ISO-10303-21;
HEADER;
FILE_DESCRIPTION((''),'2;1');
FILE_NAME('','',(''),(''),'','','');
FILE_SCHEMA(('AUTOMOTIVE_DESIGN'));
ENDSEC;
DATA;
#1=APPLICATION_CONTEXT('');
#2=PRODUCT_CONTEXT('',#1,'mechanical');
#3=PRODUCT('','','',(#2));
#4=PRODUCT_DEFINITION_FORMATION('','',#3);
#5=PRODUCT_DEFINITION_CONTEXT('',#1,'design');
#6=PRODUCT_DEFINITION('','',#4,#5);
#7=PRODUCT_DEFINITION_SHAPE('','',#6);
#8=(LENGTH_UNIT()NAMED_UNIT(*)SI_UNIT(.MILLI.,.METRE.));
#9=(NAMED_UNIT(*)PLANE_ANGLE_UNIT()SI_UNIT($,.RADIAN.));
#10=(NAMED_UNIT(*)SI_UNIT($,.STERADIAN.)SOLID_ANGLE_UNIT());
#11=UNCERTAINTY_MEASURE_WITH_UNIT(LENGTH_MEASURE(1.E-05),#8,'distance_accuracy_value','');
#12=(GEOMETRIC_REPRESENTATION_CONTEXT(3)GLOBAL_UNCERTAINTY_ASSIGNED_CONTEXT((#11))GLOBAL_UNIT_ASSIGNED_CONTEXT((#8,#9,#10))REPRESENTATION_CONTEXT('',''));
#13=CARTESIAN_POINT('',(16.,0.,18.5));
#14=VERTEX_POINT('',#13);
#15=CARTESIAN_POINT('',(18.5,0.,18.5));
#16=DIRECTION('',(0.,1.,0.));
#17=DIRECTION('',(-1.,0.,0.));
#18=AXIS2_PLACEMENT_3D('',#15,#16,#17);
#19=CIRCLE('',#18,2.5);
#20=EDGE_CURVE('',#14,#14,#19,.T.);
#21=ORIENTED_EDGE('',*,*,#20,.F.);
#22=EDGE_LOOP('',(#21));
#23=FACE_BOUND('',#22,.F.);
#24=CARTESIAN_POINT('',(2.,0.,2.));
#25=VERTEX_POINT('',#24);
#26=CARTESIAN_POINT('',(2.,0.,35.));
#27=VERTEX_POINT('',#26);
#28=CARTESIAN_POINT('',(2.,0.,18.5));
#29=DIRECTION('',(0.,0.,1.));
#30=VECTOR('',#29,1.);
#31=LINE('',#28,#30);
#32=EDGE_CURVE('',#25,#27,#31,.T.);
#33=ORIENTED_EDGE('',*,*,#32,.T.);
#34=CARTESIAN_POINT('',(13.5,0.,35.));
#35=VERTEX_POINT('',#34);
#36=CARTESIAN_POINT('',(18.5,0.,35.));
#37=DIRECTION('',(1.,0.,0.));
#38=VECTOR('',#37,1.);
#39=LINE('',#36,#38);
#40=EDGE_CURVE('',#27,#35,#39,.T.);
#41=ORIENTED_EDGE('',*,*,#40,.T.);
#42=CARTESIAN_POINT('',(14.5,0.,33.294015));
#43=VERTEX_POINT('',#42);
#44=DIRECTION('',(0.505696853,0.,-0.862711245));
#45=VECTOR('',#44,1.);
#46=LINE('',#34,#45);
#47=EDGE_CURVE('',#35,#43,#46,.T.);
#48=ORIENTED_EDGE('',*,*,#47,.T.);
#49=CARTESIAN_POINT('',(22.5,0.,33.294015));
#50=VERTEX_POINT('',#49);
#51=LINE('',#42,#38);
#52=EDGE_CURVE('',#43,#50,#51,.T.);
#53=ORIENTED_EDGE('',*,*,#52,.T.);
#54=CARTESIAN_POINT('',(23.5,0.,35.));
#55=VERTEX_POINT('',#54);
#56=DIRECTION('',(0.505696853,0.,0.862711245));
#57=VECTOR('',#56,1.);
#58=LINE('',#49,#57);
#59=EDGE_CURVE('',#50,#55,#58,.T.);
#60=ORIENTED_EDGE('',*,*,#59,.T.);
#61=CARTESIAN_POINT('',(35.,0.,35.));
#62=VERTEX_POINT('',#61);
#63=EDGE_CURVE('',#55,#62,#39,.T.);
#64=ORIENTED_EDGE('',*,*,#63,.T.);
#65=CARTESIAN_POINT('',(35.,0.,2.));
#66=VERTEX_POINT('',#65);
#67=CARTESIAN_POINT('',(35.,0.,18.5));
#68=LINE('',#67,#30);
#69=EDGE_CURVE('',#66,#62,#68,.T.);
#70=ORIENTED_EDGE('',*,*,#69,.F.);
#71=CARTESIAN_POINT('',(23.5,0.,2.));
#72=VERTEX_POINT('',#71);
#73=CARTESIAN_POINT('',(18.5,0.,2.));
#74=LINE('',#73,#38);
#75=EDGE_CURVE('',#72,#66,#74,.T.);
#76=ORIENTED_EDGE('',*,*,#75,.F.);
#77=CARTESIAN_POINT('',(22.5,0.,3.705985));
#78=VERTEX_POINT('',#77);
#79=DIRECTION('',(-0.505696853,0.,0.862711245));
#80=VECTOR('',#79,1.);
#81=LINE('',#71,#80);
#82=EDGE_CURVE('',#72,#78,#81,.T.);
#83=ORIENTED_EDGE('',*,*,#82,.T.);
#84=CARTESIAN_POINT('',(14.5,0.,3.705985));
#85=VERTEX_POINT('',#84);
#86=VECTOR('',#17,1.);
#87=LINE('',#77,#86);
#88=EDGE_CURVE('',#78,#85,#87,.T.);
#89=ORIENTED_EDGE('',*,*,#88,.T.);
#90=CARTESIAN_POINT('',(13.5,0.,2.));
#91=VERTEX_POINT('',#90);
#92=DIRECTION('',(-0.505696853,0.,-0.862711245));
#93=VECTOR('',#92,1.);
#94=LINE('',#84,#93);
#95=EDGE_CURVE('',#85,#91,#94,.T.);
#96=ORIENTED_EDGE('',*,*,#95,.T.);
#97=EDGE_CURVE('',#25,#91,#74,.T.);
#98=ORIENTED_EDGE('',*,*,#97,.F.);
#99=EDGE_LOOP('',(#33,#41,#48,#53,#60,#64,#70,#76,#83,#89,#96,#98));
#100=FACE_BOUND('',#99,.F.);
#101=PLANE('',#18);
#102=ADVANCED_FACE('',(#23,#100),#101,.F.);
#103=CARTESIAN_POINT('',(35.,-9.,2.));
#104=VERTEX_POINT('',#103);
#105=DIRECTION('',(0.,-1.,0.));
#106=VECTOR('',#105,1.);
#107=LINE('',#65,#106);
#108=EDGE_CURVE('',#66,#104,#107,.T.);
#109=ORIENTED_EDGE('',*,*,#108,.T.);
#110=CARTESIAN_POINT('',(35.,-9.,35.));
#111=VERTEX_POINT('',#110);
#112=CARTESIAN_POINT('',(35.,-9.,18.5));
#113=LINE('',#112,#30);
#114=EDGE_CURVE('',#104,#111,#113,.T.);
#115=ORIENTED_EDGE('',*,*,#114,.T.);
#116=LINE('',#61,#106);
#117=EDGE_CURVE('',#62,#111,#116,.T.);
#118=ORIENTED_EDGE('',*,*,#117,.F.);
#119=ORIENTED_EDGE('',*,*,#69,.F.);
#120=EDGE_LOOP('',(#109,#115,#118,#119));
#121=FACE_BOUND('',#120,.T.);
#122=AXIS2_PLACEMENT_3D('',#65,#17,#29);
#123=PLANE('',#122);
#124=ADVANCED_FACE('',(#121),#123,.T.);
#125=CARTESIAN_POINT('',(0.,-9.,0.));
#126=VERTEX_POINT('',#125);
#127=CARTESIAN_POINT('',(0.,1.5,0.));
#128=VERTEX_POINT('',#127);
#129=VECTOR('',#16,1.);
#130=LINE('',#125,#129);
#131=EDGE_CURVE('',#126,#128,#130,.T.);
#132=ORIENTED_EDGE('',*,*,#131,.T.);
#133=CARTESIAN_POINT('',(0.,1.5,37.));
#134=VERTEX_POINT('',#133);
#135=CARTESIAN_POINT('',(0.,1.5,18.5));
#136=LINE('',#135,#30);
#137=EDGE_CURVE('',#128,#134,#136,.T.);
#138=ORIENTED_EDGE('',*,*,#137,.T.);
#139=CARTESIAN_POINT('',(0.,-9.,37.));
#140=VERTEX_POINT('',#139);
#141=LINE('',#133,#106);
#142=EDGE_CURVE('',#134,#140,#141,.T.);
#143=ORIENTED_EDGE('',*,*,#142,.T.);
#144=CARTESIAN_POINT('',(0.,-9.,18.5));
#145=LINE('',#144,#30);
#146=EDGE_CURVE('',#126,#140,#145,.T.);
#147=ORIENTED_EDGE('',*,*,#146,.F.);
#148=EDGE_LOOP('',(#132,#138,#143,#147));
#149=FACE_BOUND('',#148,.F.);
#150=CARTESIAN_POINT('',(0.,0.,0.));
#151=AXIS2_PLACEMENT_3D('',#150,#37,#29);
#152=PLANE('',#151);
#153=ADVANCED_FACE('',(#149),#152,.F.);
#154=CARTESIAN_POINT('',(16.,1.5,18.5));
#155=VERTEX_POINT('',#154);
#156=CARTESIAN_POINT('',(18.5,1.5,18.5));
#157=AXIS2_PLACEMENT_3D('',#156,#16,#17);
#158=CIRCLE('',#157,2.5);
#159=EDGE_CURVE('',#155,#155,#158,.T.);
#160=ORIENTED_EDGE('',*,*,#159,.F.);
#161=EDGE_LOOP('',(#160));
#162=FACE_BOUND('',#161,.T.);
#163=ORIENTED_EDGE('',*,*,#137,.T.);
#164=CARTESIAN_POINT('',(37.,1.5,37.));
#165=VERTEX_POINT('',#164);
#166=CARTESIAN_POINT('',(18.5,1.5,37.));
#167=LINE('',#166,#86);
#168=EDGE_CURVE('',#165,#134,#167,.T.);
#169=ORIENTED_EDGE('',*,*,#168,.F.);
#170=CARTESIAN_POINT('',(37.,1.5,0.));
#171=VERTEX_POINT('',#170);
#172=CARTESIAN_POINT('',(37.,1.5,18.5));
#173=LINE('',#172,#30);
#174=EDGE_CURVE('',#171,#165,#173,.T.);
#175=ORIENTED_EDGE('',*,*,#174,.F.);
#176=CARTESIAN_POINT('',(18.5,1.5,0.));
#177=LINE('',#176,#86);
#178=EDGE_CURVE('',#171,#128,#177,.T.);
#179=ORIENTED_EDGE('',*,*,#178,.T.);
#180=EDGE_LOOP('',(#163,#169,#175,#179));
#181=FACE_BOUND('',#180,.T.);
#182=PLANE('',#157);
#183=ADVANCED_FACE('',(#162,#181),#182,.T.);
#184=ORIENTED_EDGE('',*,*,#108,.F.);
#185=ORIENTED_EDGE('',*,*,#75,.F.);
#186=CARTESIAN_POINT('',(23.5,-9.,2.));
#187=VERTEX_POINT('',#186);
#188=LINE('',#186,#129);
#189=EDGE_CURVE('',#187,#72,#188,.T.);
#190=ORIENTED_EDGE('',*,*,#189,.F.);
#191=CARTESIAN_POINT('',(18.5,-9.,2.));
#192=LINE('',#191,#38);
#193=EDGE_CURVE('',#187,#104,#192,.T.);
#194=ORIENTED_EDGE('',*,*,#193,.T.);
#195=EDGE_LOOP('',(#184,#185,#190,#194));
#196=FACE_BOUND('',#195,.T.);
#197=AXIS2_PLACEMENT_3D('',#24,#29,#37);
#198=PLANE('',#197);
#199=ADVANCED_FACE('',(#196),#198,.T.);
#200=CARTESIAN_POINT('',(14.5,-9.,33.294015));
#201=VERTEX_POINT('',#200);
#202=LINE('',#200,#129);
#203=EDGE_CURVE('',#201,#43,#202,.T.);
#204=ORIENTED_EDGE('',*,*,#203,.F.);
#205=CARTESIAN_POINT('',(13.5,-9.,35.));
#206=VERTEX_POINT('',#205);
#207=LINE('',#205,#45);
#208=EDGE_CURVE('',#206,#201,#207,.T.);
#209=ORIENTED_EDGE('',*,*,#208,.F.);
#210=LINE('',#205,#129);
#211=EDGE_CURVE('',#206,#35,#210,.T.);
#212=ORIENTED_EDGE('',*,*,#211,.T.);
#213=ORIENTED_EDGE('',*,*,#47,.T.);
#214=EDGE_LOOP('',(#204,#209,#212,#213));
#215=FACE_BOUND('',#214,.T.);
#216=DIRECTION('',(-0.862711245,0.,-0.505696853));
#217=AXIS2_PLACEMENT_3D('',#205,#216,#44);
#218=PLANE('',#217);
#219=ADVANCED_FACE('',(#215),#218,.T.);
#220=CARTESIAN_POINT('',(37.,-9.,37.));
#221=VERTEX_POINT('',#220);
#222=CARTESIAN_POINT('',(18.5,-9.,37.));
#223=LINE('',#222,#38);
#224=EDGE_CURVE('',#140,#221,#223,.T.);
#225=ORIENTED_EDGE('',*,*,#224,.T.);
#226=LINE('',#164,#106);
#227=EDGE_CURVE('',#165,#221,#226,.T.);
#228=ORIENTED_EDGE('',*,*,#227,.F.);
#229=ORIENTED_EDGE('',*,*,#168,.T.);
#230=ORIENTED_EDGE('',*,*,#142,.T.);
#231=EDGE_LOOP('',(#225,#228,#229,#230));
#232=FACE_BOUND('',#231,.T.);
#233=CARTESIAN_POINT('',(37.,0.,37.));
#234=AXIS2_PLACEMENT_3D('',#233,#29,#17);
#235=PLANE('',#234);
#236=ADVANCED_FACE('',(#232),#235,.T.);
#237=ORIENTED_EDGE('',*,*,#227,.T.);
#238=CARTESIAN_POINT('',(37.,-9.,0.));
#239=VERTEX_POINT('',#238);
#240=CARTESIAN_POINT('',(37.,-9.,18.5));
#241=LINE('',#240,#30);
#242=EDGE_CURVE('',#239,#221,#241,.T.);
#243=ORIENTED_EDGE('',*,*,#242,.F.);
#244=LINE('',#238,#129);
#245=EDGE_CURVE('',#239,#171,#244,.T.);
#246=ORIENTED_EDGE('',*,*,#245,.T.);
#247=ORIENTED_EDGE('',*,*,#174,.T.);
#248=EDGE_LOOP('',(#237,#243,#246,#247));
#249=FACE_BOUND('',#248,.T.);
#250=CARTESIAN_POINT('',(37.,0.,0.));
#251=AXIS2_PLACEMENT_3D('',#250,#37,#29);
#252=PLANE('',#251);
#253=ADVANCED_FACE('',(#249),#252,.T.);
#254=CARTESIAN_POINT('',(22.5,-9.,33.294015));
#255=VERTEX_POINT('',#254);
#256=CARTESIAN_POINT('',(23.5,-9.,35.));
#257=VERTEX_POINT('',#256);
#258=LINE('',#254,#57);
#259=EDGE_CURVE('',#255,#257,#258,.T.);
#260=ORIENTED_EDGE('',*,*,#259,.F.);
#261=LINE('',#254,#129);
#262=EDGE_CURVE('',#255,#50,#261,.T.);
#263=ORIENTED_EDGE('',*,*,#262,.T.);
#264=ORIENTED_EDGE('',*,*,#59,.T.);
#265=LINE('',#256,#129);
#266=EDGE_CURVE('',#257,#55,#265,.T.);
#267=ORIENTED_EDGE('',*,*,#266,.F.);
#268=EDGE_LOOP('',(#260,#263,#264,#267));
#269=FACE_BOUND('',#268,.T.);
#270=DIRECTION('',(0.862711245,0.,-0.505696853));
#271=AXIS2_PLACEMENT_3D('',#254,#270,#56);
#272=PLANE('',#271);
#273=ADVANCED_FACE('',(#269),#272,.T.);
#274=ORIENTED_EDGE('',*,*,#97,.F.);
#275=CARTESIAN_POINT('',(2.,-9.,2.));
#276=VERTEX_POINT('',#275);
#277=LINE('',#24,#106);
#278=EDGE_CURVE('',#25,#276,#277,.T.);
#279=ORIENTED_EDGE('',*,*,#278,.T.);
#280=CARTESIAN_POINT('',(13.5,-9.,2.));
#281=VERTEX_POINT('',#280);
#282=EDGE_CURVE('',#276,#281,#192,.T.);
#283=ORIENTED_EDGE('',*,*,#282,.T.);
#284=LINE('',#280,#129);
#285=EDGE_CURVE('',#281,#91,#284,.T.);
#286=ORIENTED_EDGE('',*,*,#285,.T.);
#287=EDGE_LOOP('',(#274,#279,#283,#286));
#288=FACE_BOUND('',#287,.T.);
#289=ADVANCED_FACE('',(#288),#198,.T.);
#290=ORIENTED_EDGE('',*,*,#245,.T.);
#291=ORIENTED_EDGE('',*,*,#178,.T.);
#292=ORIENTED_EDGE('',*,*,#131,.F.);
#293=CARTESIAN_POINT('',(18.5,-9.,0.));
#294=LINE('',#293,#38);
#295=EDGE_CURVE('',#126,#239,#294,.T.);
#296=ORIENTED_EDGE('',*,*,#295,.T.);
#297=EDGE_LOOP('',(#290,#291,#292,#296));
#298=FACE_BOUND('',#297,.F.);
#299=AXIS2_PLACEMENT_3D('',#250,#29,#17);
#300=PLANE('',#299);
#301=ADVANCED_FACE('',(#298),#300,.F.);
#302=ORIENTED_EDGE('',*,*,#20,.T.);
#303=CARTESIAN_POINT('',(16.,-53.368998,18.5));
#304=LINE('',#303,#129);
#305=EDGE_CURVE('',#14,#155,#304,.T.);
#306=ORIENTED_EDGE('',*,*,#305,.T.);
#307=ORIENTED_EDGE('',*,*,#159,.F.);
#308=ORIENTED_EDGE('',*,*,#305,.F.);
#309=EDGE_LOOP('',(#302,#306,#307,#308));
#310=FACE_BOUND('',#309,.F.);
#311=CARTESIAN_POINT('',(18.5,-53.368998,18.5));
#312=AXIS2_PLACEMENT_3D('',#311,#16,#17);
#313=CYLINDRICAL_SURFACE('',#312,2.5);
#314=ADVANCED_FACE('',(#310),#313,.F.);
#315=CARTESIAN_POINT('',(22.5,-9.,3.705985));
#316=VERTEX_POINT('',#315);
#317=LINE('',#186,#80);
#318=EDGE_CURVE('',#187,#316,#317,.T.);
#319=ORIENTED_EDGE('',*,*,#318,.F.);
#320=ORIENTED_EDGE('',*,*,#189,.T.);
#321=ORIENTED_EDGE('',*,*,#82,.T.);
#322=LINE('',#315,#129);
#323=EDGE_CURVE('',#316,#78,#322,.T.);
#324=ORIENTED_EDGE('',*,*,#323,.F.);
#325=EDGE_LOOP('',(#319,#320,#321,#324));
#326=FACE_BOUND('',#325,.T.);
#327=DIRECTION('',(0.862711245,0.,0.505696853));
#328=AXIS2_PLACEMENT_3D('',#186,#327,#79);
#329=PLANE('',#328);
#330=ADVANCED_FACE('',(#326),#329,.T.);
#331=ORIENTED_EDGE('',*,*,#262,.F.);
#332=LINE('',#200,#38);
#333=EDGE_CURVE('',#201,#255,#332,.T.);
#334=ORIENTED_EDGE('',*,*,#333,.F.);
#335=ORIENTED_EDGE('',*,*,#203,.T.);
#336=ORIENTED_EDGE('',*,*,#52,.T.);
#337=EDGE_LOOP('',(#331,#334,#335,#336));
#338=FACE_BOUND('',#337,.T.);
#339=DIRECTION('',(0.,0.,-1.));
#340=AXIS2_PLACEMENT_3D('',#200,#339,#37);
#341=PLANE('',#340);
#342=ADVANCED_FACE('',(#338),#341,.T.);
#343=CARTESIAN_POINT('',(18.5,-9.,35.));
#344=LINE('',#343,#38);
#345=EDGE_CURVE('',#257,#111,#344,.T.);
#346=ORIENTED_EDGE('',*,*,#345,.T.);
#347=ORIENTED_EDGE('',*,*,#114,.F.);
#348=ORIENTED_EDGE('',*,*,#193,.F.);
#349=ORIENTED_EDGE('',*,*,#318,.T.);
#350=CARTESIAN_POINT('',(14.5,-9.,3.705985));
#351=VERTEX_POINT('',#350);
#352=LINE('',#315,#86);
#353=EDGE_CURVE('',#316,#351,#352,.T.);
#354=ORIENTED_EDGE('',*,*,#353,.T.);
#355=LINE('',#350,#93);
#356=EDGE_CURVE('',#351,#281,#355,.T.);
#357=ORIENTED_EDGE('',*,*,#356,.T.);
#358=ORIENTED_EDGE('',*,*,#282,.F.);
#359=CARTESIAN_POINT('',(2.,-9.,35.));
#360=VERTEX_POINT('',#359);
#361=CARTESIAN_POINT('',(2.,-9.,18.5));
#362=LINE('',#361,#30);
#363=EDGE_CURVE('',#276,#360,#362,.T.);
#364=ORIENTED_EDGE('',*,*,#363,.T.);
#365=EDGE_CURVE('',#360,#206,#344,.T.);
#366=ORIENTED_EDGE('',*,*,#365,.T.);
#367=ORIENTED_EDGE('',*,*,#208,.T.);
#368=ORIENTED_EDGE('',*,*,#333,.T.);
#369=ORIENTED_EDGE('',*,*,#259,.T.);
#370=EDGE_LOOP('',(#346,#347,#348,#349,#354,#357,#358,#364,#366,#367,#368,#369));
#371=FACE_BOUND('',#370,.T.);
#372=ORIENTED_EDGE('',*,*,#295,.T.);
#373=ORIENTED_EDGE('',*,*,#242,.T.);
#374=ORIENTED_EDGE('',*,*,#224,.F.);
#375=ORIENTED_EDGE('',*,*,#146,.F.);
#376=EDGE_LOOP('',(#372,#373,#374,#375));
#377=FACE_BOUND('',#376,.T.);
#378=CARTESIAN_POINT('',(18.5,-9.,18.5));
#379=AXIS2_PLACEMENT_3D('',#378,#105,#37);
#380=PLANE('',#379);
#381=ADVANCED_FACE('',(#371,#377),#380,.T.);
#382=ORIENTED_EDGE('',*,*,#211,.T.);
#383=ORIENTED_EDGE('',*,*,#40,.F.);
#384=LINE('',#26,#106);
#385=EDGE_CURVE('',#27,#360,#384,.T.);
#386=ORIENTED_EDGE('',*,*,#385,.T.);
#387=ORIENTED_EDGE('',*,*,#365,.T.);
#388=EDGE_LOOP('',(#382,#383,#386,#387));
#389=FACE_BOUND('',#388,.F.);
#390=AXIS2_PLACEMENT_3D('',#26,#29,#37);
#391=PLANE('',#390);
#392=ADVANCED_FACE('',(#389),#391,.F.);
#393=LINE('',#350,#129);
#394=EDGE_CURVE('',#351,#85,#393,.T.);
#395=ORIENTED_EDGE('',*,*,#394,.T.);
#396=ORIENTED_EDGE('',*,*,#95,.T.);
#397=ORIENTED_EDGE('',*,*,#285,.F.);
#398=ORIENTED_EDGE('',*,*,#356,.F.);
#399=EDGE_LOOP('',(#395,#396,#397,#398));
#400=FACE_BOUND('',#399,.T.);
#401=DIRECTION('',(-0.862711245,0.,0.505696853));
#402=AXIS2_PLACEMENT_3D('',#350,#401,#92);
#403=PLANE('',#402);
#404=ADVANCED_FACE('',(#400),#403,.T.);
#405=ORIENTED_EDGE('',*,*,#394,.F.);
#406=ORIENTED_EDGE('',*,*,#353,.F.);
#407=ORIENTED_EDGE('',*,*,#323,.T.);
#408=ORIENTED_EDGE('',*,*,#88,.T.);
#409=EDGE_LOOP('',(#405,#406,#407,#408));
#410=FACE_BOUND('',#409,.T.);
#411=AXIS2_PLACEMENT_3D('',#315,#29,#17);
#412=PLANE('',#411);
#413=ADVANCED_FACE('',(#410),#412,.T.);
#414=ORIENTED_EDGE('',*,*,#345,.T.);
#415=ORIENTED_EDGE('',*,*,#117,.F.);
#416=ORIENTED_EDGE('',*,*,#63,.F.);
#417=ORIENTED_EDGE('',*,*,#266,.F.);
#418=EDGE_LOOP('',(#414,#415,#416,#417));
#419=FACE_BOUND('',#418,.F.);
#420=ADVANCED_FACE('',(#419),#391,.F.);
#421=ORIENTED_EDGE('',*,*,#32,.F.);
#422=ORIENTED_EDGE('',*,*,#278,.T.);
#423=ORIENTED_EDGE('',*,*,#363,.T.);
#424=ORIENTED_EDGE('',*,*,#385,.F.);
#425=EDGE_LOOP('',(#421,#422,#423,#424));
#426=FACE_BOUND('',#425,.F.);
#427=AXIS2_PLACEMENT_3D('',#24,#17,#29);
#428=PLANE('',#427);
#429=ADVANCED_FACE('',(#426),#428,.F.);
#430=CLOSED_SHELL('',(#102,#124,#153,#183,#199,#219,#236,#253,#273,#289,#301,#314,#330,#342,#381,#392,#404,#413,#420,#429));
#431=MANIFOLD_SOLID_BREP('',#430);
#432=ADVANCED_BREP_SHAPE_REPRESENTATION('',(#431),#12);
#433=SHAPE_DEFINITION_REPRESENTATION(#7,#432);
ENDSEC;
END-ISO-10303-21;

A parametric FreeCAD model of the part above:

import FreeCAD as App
import Part
import Sketcher
from FreeCAD import Vector
Q = App.Units.Quantity

doc = App.newDocument("Part")
body = doc.addObject("PartDesign::Body", "Body")

sketch1 = body.newObject("Sketcher::SketchObject", "Sketch")
sketch1.AttachmentSupport = (doc.getObject("XZ_Plane"), [""])
sketch1.MapMode = "FlatFace"
sketch1.addGeometry([
    Part.LineSegment(Vector(0, 37, 0), Vector(0, 0, 0)),
    Part.LineSegment(Vector(0, 0, 0), Vector(37, 0, 0)),
    Part.LineSegment(Vector(37, 0, 0), Vector(37, 37, 0)),
    Part.LineSegment(Vector(37, 37, 0), Vector(0, 37, 0)),
    Part.LineSegment(Vector(35, 2, 0), Vector(2, 2, 0)),
    Part.LineSegment(Vector(2, 2, 0), Vector(2, 35, 0)),
    Part.LineSegment(Vector(2, 35, 0), Vector(35, 35, 0)),
    Part.LineSegment(Vector(35, 35, 0), Vector(35, 2, 0)),
], False)
sketch1.addConstraint([
    Sketcher.Constraint("Coincident", 0, 2, 1, 1),
    Sketcher.Constraint("Coincident", 1, 2, 2, 1),
    Sketcher.Constraint("Coincident", 2, 2, 3, 1),
    Sketcher.Constraint("Coincident", 3, 2, 0, 1),
    Sketcher.Constraint("Coincident", 4, 2, 5, 1),
    Sketcher.Constraint("Coincident", 5, 2, 6, 1),
    Sketcher.Constraint("Coincident", 6, 2, 7, 1),
    Sketcher.Constraint("Coincident", 7, 2, 4, 1),
    Sketcher.Constraint("Vertical", 0),
    Sketcher.Constraint("Horizontal", 1),
    Sketcher.Constraint("Vertical", 2),
    Sketcher.Constraint("Horizontal", 3),
    Sketcher.Constraint("Horizontal", 4),
    Sketcher.Constraint("Vertical", 5),
    Sketcher.Constraint("Horizontal", 6),
    Sketcher.Constraint("Vertical", 7),
    Sketcher.Constraint("Coincident", 0, 2, -1, 1),
    Sketcher.Constraint("Equal", 3, 0),
    Sketcher.Constraint("Equal", 6, 5),
    Sketcher.Constraint("DistanceX", 1, 1, 1, 2, Q("37 mm")),
    Sketcher.Constraint("DistanceX", 4, 2, 4, 1, Q("33 mm")),
    Sketcher.Constraint("DistanceX", -1, 1, 4, 2, Q("2 mm")),
    Sketcher.Constraint("DistanceY", -1, 1, 4, 2, Q("2 mm")),
])
pad1 = body.newObject("PartDesign::Pad", "Pad")
pad1.Profile = sketch1
pad1.Length = 9

sketch2 = body.newObject("Sketcher::SketchObject", "Sketch001")
sketch2.AttachmentSupport = (doc.getObject("XZ_Plane"), [""])
sketch2.MapMode = "FlatFace"
sketch2.addGeometry([
    Part.LineSegment(Vector(37, 37, 0), Vector(37, 0, 0)),
    Part.LineSegment(Vector(37, 0, 0), Vector(0, 0, 0)),
    Part.LineSegment(Vector(0, 0, 0), Vector(0, 37, 0)),
    Part.LineSegment(Vector(0, 37, 0), Vector(37, 37, 0)),
], False)
sketch2.addConstraint([
    Sketcher.Constraint("Coincident", 0, 2, 1, 1),
    Sketcher.Constraint("Coincident", 1, 2, 2, 1),
    Sketcher.Constraint("Coincident", 2, 2, 3, 1),
    Sketcher.Constraint("Coincident", 3, 2, 0, 1),
    Sketcher.Constraint("Vertical", 0),
    Sketcher.Constraint("Horizontal", 1),
    Sketcher.Constraint("Vertical", 2),
    Sketcher.Constraint("Horizontal", 3),
    Sketcher.Constraint("Coincident", 1, 2, -1, 1),
    Sketcher.Constraint("Equal", 3, 0),
    Sketcher.Constraint("DistanceX", 1, 2, 1, 1, Q("37 mm")),
])
pad2 = body.newObject("PartDesign::Pad", "Pad001")
pad2.Profile = sketch2
pad2.Length = 1.5
pad2.Reversed = True

sketch3 = body.newObject("Sketcher::SketchObject", "Sketch002")
sketch3.AttachmentSupport = (doc.getObject("XZ_Plane"), [""])
sketch3.MapMode = "FlatFace"
sketch3.AttachmentOffset = App.Placement(Vector(0, 0, 9), App.Rotation())
sketch3.addGeometry([
    Part.LineSegment(Vector(23.5, 35, 0), Vector(13.5, 35, 0)),
    Part.LineSegment(Vector(13.5, 35, 0), Vector(14.5, 33.294015, 0)),
    Part.LineSegment(Vector(14.5, 33.294015, 0), Vector(22.5, 33.294015, 0)),
    Part.LineSegment(Vector(22.5, 33.294015, 0), Vector(23.5, 35, 0)),
    Part.LineSegment(Vector(14.5, 3.705985, 0), Vector(13.5, 2, 0)),
    Part.LineSegment(Vector(13.5, 2, 0), Vector(23.5, 2, 0)),
    Part.LineSegment(Vector(23.5, 2, 0), Vector(22.5, 3.705985, 0)),
    Part.LineSegment(Vector(22.5, 3.705985, 0), Vector(14.5, 3.705985, 0)),
], False)
sketch3.addConstraint([
    Sketcher.Constraint("Coincident", 0, 2, 1, 1),
    Sketcher.Constraint("Coincident", 1, 2, 2, 1),
    Sketcher.Constraint("Coincident", 2, 2, 3, 1),
    Sketcher.Constraint("Coincident", 3, 2, 0, 1),
    Sketcher.Constraint("Coincident", 4, 2, 5, 1),
    Sketcher.Constraint("Coincident", 5, 2, 6, 1),
    Sketcher.Constraint("Coincident", 6, 2, 7, 1),
    Sketcher.Constraint("Coincident", 7, 2, 4, 1),
    Sketcher.Constraint("Horizontal", 0),
    Sketcher.Constraint("Horizontal", 2),
    Sketcher.Constraint("Horizontal", 5),
    Sketcher.Constraint("Horizontal", 7),
    Sketcher.Constraint("Parallel", 3, 4),
    Sketcher.Constraint("Parallel", 1, 6),
    Sketcher.Constraint("Vertical", 0, 2, 4, 2),
    Sketcher.Constraint("Vertical", 3, 2, 5, 2),
    Sketcher.Constraint("Vertical", 2, 2, 6, 2),
    Sketcher.Constraint("Vertical", 1, 2, 7, 2),
    Sketcher.Constraint("DistanceX", 0, 2, 0, 1, Q("10 mm")),
    Sketcher.Constraint("DistanceX", 2, 1, 2, 2, Q("8 mm")),
    Sketcher.Constraint("DistanceY", -1, 1, 0, 2, Q("35 mm")),
    Sketcher.Constraint("DistanceY", -1, 1, 4, 2, Q("2 mm")),
    Sketcher.Constraint("DistanceX", -1, 1, 0, 2, Q("13.5 mm")),
    Sketcher.Constraint("Distance", 1, Q("1.977469 mm")),
])
pad3 = body.newObject("PartDesign::Pad", "Pad002")
pad3.Profile = sketch3
pad3.Type = "UpToLast"
pad3.Reversed = True

sketch4 = body.newObject("Sketcher::SketchObject", "Sketch003")
sketch4.AttachmentSupport = (doc.getObject("XZ_Plane"), [""])
sketch4.MapMode = "FlatFace"
sketch4.addGeometry(Part.Circle(Vector(18.5, 18.5, 0), Vector(0, 0, 1), 2.5), False)
sketch4.addConstraint([
    Sketcher.Constraint("Diameter", 0, Q("5 mm")),
    Sketcher.Constraint("DistanceX", -1, 1, 0, 3, Q("18.5 mm")),
    Sketcher.Constraint("DistanceY", -1, 1, 0, 3, Q("18.5 mm")),
])
doc.recompute()
hole = body.newObject("PartDesign::Hole", "Hole")
hole.Profile = sketch4
hole.ThreadType = "None"
hole.Diameter = 5
hole.DepthType = "ThroughAll"

doc.recompute()
